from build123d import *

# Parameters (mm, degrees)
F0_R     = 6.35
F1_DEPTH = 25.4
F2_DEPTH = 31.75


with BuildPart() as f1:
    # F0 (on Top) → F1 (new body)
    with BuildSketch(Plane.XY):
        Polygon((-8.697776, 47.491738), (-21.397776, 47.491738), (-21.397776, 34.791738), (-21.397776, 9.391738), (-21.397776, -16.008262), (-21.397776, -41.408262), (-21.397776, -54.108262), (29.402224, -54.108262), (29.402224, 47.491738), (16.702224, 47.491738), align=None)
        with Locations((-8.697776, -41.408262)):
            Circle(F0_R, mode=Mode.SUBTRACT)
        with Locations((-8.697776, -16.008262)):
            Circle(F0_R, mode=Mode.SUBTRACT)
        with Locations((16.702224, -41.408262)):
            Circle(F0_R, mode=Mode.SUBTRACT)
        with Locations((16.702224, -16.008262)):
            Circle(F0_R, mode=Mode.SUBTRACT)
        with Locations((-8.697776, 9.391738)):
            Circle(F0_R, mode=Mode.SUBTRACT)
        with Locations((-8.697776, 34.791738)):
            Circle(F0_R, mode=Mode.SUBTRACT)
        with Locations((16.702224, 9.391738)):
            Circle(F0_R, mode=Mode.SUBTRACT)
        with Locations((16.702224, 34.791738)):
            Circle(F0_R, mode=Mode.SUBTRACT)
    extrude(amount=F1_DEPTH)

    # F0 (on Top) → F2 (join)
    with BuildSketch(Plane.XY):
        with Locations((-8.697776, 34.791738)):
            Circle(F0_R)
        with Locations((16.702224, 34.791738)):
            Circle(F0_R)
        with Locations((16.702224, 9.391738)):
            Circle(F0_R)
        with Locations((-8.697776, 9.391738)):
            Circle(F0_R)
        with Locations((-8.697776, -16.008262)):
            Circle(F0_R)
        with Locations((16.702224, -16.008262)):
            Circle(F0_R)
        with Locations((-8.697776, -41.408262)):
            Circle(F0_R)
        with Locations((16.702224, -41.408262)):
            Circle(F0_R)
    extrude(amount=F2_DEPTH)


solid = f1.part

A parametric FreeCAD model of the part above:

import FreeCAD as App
import Part
import Sketcher
from FreeCAD import Vector
Q = App.Units.Quantity

doc = App.newDocument("Part")
body = doc.addObject("PartDesign::Body", "Body")

# Sketch on XY plane
sketch1 = body.newObject("Sketcher::SketchObject", "Sketch")
sketch1.AttachmentSupport = (doc.getObject("XY_Plane"), [""])
sketch1.MapMode = "FlatFace"
sketch1.addGeometry([
    Part.LineSegment(Vector(-21, 47, 0), Vector(-21, -54, 0)),  # 0
    Part.LineSegment(Vector(-21, -54, 0), Vector(29, -54, 0)),  # 1
    Part.LineSegment(Vector(29, -54, 0), Vector(29, 47, 0)),  # 2
    Part.LineSegment(Vector(29, 47, 0), Vector(-21, 47, 0)),  # 3
    Part.Circle(Vector(-9, -41, 0), Vector(0, 0, 1), 6),  # 4
    Part.Circle(Vector(-9, -16, 0), Vector(0, 0, 1), 6),  # 5
    Part.Circle(Vector(17, -41, 0), Vector(0, 0, 1), 6),  # 6
    Part.Circle(Vector(17, -16, 0), Vector(0, 0, 1), 6),  # 7
    Part.Circle(Vector(-9, 9, 0), Vector(0, 0, 1), 6),  # 8
    Part.Circle(Vector(-9, 35, 0), Vector(0, 0, 1), 6),  # 9
    Part.Circle(Vector(17, 9, 0), Vector(0, 0, 1), 6),  # 10
    Part.Circle(Vector(17, 35, 0), Vector(0, 0, 1), 6),  # 11
], False)
sketch1.addConstraint([
    Sketcher.Constraint("Coincident", 0, 2, 1, 1),
    Sketcher.Constraint("Coincident", 1, 2, 2, 1),
    Sketcher.Constraint("Coincident", 2, 2, 3, 1),
    Sketcher.Constraint("Coincident", 3, 2, 0, 1),
    Sketcher.Constraint("Vertical", 0),
    Sketcher.Constraint("Horizontal", 1),
    Sketcher.Constraint("Vertical", 2),
    Sketcher.Constraint("Horizontal", 3),
    Sketcher.Constraint("Equal", 4, 5),
    Sketcher.Constraint("Equal", 5, 6),
    Sketcher.Constraint("Equal", 6, 7),
    Sketcher.Constraint("Equal", 7, 8),
    Sketcher.Constraint("Equal", 8, 9),
    Sketcher.Constraint("Equal", 9, 10),
    Sketcher.Constraint("Equal", 10, 11),
    Sketcher.Constraint("Horizontal", 4, 3, 6, 3),
    Sketcher.Constraint("Horizontal", 5, 3, 7, 3),
    Sketcher.Constraint("Horizontal", 8, 3, 10, 3),
    Sketcher.Constraint("Horizontal", 9, 3, 11, 3),
    Sketcher.Constraint("Vertical", 4, 3, 5, 3),
    Sketcher.Constraint("Vertical", 6, 3, 7, 3),
    Sketcher.Constraint("Vertical", 5, 3, 8, 3),
    Sketcher.Constraint("Vertical", 8, 3, 9, 3),
    Sketcher.Constraint("Vertical", 7, 3, 10, 3),
    Sketcher.Constraint("Vertical", 10, 3, 11, 3),
    Sketcher.Constraint("Diameter", 4, Q("0.5 in")),
    Sketcher.Constraint("DistanceX", 1, 1, 1, 2, Q("2 in")),
    Sketcher.Constraint("DistanceY", 0, 2, 0, 1, Q("4 in")),
    Sketcher.Constraint("DistanceY", 4, 3, 5, 3, Q("1 in")),
    Sketcher.Constraint("DistanceX", 4, 3, 6, 3, Q("1 in")),
    Sketcher.Constraint("DistanceY", 5, 3, 8, 3, Q("1 in")),
    Sketcher.Constraint("DistanceY", 8, 3, 9, 3, Q("1 in")),
    Sketcher.Constraint("DistanceX", 0, 2, 4, 3, Q("0.5 in")),
    Sketcher.Constraint("DistanceY", 0, 2, 4, 3, Q("0.5 in")),
    Sketcher.Constraint("DistanceY", 5, 3, -1, 1, 16.008262),
    Sketcher.Constraint("DistanceX", 4, 3, -1, 1, 8.697776),
])
pad1 = body.newObject("PartDesign::Pad", "Pad")
pad1.Profile = sketch1
pad1.Length = Q("1 in")

# Sketch on XY plane
sketch2 = body.newObject("Sketcher::SketchObject", "Sketch001")
sketch2.AttachmentSupport = (doc.getObject("XY_Plane"), [""])
sketch2.MapMode = "FlatFace"
sketch2.addGeometry([
    Part.Circle(Vector(-9, 35, 0), Vector(0, 0, 1), 6),  # 0
    Part.Circle(Vector(17, 35, 0), Vector(0, 0, 1), 6),  # 1
    Part.Circle(Vector(17, 9, 0), Vector(0, 0, 1), 6),  # 2
    Part.Circle(Vector(-9, 9, 0), Vector(0, 0, 1), 6),  # 3
    Part.Circle(Vector(-9, -16, 0), Vector(0, 0, 1), 6),  # 4
    Part.Circle(Vector(17, -16, 0), Vector(0, 0, 1), 6),  # 5
    Part.Circle(Vector(-9, -41, 0), Vector(0, 0, 1), 6),  # 6
    Part.Circle(Vector(17, -41, 0), Vector(0, 0, 1), 6),  # 7
], False)
sketch2.addConstraint([
    Sketcher.Constraint("Equal", 0, 1),
    Sketcher.Constraint("Equal", 1, 2),
    Sketcher.Constraint("Equal", 2, 3),
    Sketcher.Constraint("Equal", 3, 4),
    Sketcher.Constraint("Equal", 4, 5),
    Sketcher.Constraint("Equal", 5, 6),
    Sketcher.Constraint("Equal", 6, 7),
    Sketcher.Constraint("Horizontal", 0, 3, 1, 3),
    Sketcher.Constraint("Horizontal", 2, 3, 3, 3),
    Sketcher.Constraint("Horizontal", 4, 3, 5, 3),
    Sketcher.Constraint("Horizontal", 6, 3, 7, 3),
    Sketcher.Constraint("Vertical", 1, 3, 2, 3),
    Sketcher.Constraint("Vertical", 0, 3, 3, 3),
    Sketcher.Constraint("Vertical", 3, 3, 4, 3),
    Sketcher.Constraint("Vertical", 2, 3, 5, 3),
    Sketcher.Constraint("Vertical", 4, 3, 6, 3),
    Sketcher.Constraint("Vertical", 5, 3, 7, 3),
    Sketcher.Constraint("Diameter", 0, Q("0.5 in")),
    Sketcher.Constraint("DistanceX", 0, 3, 1, 3, Q("1 in")),
    Sketcher.Constraint("DistanceY", 2, 3, 1, 3, Q("1 in")),
    Sketcher.Constraint("DistanceY", 4, 3, 3, 3, Q("1 in")),
    Sketcher.Constraint("DistanceY", 6, 3, 4, 3, Q("1 in")),
    Sketcher.Constraint("DistanceY", -1, 1, 0, 3, 34.791738),
    Sketcher.Constraint("DistanceX", 0, 3, -1, 1, 8.697776),
])
pad2 = body.newObject("PartDesign::Pad", "Pad001")
pad2.Profile = sketch2
pad2.Length = Q("1.25 in")

doc.recompute()
